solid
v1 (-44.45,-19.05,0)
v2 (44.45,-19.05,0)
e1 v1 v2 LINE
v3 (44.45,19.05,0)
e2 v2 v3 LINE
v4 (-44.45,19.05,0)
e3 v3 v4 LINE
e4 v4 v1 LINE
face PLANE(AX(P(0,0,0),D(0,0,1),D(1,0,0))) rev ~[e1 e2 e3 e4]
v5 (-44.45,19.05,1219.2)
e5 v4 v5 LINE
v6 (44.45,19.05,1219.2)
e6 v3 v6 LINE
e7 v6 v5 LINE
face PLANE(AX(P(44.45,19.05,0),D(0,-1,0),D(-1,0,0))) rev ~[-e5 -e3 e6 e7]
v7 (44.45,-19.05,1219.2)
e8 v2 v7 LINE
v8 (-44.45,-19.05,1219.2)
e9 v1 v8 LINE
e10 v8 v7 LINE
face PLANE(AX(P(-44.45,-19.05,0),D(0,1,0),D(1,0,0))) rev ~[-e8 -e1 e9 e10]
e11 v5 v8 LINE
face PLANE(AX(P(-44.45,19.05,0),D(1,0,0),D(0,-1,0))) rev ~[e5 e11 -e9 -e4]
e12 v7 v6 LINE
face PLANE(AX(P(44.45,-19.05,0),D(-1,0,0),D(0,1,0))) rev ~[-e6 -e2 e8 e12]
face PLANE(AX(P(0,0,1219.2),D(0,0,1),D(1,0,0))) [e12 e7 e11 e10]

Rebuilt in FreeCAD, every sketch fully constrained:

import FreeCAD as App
import Part
import Sketcher

V = App.Vector
Q = App.Units.Quantity


def add_polygon(sketch, points):
    """Adds a closed chain of lines whose ends are joined by coincident constraints."""
    first, n = sketch.GeometryCount, len(points)
    for a, b in zip(points, points[1:] + points[:1]):
        sketch.addGeometry(Part.LineSegment(App.Vector(*a, 0), App.Vector(*b, 0)), False)
    for i in range(n):
        sketch.addConstraint(Sketcher.Constraint("Coincident", first + i, 2, first + (i + 1) % n, 1))

doc = App.newDocument("Part")
params = doc.addObject("Spreadsheet::Sheet", "Params")
for row, (alias, value) in enumerate([
    ("sketch1_width", "3.5 in"),
    ("sketch1_height", "1.5 in"),
    ("pad1_length", "48 in"),
], start=1):
    params.set(f"A{row}", alias)
    params.set(f"B{row}", "=" + value)
    params.setAlias(f"B{row}", alias)

body = doc.addObject("PartDesign::Body", "Body")

# Sketch on XY plane
sketch1 = body.newObject("Sketcher::SketchObject", "Sketch")
sketch1.AttachmentSupport = (doc.getObject("XY_Plane"), [""])
sketch1.MapMode = "FlatFace"
add_polygon(sketch1, [(-44, 19), (-44, -19), (44, -19), (44, 19)])  # lines 0-3
sketch1.addConstraint([
    Sketcher.Constraint("Vertical", 0),
    Sketcher.Constraint("Horizontal", 1),
    Sketcher.Constraint("Vertical", 2),
    Sketcher.Constraint("Horizontal", 3),
    Sketcher.Constraint("Symmetric", 0, 2, 2, 2, -1, 1),
    Sketcher.Constraint("DistanceX", 1, 1, 1, 2, Q("3.5 in")),
    Sketcher.Constraint("DistanceY", 0, 2, 0, 1, Q("1.5 in")),
])
sketch1.setExpression("Constraints[9]", "Params.sketch1_width")
sketch1.setExpression("Constraints[10]", "Params.sketch1_height")
pad1 = body.newObject("PartDesign::Pad", "Pad")
pad1.Profile = sketch1
pad1.setExpression("Length", "Params.pad1_length")

doc.recompute()
